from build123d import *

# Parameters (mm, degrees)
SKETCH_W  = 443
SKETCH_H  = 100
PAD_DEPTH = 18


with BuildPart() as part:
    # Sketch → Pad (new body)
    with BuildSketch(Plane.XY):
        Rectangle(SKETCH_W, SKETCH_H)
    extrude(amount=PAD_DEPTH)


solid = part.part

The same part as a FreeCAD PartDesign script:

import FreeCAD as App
import Part
import Sketcher
from FreeCAD import Vector
Q = App.Units.Quantity

doc = App.newDocument("Part")
body = doc.addObject("PartDesign::Body", "Body")

# Sketch on XY plane
sketch1 = body.newObject("Sketcher::SketchObject", "Sketch")
sketch1.AttachmentSupport = (doc.getObject("XY_Plane"), [""])
sketch1.MapMode = "FlatFace"
sketch1.addGeometry([
    Part.LineSegment(Vector(-222, 50, 0), Vector(-222, -50, 0)),
    Part.LineSegment(Vector(-222, -50, 0), Vector(222, -50, 0)),
    Part.LineSegment(Vector(222, -50, 0), Vector(222, 50, 0)),
    Part.LineSegment(Vector(222, 50, 0), Vector(-222, 50, 0)),
], False)
sketch1.addConstraint([
    Sketcher.Constraint("Coincident", 0, 2, 1, 1),
    Sketcher.Constraint("Coincident", 1, 2, 2, 1),
    Sketcher.Constraint("Coincident", 2, 2, 3, 1),
    Sketcher.Constraint("Coincident", 3, 2, 0, 1),
    Sketcher.Constraint("Vertical", 0),
    Sketcher.Constraint("Horizontal", 1),
    Sketcher.Constraint("Vertical", 2),
    Sketcher.Constraint("Horizontal", 3),
    Sketcher.Constraint("Symmetric", 0, 2, 2, 2, -1, 1),
    Sketcher.Constraint("DistanceX", 1, 1, 1, 2, Q("443 mm")),
    Sketcher.Constraint("DistanceY", 0, 2, 0, 1, Q("100 mm")),
])
pad1 = body.newObject("PartDesign::Pad", "Pad")
pad1.Profile = sketch1
pad1.Length = 18

doc.recompute()
